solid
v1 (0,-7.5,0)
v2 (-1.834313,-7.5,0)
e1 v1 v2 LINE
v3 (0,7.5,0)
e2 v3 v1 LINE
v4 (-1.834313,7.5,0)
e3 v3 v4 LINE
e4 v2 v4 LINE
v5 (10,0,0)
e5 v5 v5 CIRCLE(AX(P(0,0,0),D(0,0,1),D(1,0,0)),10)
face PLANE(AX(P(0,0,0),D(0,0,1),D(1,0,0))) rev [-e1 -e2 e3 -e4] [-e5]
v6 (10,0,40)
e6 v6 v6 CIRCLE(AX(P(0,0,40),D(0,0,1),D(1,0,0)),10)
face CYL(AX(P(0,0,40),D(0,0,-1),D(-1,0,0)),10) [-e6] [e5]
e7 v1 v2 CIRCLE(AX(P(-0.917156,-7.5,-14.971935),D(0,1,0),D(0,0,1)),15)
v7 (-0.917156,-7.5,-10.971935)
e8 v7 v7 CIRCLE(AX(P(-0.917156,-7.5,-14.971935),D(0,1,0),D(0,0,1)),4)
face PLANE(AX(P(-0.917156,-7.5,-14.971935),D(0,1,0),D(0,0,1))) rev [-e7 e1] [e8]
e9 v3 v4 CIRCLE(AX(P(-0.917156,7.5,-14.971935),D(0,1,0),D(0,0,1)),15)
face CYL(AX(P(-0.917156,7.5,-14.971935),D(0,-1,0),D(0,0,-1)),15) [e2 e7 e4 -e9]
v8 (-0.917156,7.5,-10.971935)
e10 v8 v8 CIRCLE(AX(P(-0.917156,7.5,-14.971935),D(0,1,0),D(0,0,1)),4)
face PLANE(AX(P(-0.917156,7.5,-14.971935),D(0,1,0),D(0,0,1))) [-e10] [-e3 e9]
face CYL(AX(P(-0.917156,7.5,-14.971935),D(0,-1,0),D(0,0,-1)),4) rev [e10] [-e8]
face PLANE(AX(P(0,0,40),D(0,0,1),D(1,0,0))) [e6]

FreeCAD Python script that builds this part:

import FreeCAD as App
import Part
import Sketcher

V = App.Vector

doc = App.newDocument("Part")
body = doc.addObject("PartDesign::Body", "Body")

# Sketch on XY plane
sketch1 = body.newObject("Sketcher::SketchObject", "Sketch")
sketch1.AttachmentSupport = (doc.getObject("XY_Plane"), [""])
sketch1.MapMode = "FlatFace"
sketch1.addGeometry(Part.Circle(V(0, 0, 0), V(0, 0, 1), 10), False)
sketch1.addConstraint([
    Sketcher.Constraint("Coincident", 0, 3, -1, 1),
    Sketcher.Constraint("Diameter", 0, 20.0),
])
pad1 = body.newObject("PartDesign::Pad", "Pad")
pad1.Profile = sketch1
pad1.Length = 40

# Sketch on XZ plane
sketch2 = body.newObject("Sketcher::SketchObject", "Sketch001")
sketch2.AttachmentSupport = (doc.getObject("XZ_Plane"), [""])
sketch2.MapMode = "FlatFace"
sketch2.addGeometry([
    Part.Circle(V(-0.917156, -14.971935, 0), V(0, 0, 1), 15),
    Part.Circle(V(-0.917156, -14.971935, 0), V(0, 0, 1), 4),
], False)
sketch2.addConstraint([
    Sketcher.Constraint("Coincident", 1, 3, 0, 3),
    Sketcher.Constraint("Diameter", 0, 30.0),
    Sketcher.Constraint("Diameter", 1, 8.0),
    Sketcher.Constraint("DistanceX", 0, 3, -1, 1, 0.917156),
    Sketcher.Constraint("DistanceY", 0, 3, -1, 1, 14.971935),
])
pad2 = body.newObject("PartDesign::Pad", "Pad001")
pad2.Profile = sketch2
pad2.Length = 15
pad2.Midplane = True

doc.recompute()
